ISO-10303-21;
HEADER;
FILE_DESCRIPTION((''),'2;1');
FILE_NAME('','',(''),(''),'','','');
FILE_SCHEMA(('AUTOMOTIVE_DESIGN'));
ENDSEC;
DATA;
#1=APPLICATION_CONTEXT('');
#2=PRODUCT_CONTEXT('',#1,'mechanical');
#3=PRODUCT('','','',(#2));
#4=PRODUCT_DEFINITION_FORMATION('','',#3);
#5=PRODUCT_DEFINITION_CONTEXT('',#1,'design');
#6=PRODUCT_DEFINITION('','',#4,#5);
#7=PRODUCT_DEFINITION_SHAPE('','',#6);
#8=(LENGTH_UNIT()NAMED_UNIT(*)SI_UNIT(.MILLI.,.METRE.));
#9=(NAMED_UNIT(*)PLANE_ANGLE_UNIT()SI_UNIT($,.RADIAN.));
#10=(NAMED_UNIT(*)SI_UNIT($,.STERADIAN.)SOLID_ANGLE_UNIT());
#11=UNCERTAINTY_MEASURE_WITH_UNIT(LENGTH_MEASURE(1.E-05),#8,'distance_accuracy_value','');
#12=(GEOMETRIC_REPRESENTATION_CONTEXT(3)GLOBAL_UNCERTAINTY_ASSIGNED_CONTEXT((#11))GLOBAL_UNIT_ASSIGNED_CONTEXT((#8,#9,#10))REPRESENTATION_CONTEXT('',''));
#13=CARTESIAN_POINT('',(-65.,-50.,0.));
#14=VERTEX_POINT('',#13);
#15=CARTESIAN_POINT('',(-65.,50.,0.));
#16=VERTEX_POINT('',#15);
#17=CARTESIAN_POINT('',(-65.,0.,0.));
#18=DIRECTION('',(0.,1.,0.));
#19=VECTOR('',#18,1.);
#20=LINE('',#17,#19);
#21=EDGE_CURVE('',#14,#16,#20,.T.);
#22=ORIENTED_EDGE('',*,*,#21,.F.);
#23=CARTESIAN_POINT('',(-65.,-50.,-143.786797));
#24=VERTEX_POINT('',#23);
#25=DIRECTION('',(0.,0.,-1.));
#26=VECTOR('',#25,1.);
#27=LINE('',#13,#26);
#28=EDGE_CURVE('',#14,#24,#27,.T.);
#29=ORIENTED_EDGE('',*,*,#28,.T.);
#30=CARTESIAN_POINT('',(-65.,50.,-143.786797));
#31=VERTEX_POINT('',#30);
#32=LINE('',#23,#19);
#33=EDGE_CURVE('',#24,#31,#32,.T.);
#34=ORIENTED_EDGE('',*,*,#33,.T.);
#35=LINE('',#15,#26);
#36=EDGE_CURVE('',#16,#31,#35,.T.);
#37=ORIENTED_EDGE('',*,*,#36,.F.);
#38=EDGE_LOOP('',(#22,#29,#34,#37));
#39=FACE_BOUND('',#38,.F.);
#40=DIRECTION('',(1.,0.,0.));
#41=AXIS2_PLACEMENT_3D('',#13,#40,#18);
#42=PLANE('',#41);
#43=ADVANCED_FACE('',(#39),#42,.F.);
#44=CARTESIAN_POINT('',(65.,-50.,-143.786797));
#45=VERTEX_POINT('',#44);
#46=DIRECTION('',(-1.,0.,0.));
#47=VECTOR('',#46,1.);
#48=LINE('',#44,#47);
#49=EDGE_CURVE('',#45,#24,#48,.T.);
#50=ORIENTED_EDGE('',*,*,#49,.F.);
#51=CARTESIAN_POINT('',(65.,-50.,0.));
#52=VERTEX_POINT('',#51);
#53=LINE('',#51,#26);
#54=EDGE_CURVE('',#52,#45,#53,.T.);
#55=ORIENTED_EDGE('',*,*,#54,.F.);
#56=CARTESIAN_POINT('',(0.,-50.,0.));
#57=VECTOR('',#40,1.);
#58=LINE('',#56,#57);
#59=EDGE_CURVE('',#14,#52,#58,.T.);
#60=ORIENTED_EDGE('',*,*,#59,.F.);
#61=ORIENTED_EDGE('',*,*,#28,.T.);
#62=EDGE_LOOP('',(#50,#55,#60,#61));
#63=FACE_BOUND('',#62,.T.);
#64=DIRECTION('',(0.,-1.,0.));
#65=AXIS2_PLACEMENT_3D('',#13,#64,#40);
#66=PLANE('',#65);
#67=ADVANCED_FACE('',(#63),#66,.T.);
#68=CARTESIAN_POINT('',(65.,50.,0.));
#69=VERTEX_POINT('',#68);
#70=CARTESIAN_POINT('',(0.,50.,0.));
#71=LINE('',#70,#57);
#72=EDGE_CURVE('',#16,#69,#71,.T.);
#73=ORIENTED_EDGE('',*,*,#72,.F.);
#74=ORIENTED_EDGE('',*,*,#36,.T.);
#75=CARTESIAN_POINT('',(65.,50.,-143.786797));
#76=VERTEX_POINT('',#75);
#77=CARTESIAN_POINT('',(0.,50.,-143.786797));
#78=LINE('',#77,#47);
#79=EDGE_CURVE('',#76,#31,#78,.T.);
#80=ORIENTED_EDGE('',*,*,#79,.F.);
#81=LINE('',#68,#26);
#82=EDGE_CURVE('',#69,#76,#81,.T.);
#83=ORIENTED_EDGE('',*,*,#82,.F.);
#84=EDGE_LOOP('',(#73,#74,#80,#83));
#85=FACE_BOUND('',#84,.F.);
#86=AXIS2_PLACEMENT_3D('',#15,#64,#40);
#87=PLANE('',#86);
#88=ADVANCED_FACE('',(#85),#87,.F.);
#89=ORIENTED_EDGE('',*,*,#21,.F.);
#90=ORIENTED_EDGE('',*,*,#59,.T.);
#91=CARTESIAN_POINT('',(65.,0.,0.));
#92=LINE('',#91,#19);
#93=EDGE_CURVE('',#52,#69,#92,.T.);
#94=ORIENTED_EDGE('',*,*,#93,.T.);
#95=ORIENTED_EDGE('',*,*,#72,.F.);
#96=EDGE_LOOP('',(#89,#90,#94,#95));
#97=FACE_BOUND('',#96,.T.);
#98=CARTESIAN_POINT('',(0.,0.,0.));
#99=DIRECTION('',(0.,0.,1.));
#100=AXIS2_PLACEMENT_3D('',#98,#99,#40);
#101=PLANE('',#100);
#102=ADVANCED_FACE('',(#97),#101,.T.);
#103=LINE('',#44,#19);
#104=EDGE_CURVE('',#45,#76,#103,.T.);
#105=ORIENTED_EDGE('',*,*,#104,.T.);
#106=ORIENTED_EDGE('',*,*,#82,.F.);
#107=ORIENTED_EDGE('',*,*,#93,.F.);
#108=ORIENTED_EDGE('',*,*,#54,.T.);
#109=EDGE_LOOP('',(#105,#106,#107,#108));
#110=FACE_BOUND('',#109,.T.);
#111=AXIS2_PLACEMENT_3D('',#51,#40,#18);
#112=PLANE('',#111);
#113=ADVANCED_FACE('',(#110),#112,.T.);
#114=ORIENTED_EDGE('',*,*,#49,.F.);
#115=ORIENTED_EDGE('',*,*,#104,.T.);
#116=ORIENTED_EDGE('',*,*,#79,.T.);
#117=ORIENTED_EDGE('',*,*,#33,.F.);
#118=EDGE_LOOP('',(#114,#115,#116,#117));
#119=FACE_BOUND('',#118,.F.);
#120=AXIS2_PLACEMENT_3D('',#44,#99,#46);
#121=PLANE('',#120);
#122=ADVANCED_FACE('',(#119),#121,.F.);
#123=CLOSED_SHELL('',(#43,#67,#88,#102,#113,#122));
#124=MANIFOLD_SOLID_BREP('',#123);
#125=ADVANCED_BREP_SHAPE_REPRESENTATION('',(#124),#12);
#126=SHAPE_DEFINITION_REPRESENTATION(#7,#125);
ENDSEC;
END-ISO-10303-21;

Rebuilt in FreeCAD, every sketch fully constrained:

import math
import FreeCAD as App
import Part
import Sketcher
from FreeCAD import Vector
Q = App.Units.Quantity


def edges_at(feature, points):
    """Names of the edges that pass closest to the given points."""
    edges = feature.Shape.Edges
    near = lambda p: min(range(len(edges)), key=lambda i: edges[i].distToShape(Part.Vertex(*p))[0])
    return sorted({f"Edge{near(p) + 1}" for p in points})

doc = App.newDocument("Part")
body = doc.addObject("PartDesign::Body", "Body")

sketch1 = body.newObject("Sketcher::SketchObject", "Sketch")
sketch1.AttachmentSupport = (doc.getObject("XY_Plane"), [""])
sketch1.MapMode = "FlatFace"
sketch1.addGeometry([
    Part.LineSegment(Vector(-65, 50, 0), Vector(-65, -50, 0)),
    Part.LineSegment(Vector(-65, -50, 0), Vector(65, -50, 0)),
    Part.LineSegment(Vector(65, -50, 0), Vector(65, 50, 0)),
    Part.LineSegment(Vector(65, 50, 0), Vector(-65, 50, 0)),
], False)
sketch1.addConstraint([
    Sketcher.Constraint("Coincident", 0, 2, 1, 1),
    Sketcher.Constraint("Coincident", 1, 2, 2, 1),
    Sketcher.Constraint("Coincident", 2, 2, 3, 1),
    Sketcher.Constraint("Coincident", 3, 2, 0, 1),
    Sketcher.Constraint("Vertical", 0),
    Sketcher.Constraint("Horizontal", 1),
    Sketcher.Constraint("Vertical", 2),
    Sketcher.Constraint("Horizontal", 3),
    Sketcher.Constraint("Symmetric", 0, 2, 2, 2, -1, 1),
    Sketcher.Constraint("DistanceX", 1, 1, 1, 2, Q("130 mm")),
    Sketcher.Constraint("DistanceY", 0, 2, 0, 1, Q("100 mm")),
])
pad1 = body.newObject("PartDesign::Pad", "Pad")
pad1.Profile = sketch1
pad1.Length = 180
pad1.Reversed = True
doc.recompute()

fillet = body.newObject("PartDesign::Fillet", "Fillet")
fillet.Base = (pad1, edges_at(pad1, [(65, 0, -180), (-65, 0, -180)]))
fillet.Radius = 36.213203

sketch2 = body.newObject("Sketcher::SketchObject", "Sketch001")
sketch2.AttachmentSupport = (doc.getObject("XZ_Plane"), [""])
sketch2.MapMode = "FlatFace"
sketch2.AttachmentOffset = App.Placement(Vector(0, 0, 50), App.Rotation())
sketch2.addGeometry([
    Part.ArcOfCircle(Part.Circle(Vector(28.786796, -143.786796, 0), Vector(0, 0, 1), 36.213204), math.radians(-89.999998), math.radians(-0.000002)),
    Part.LineSegment(Vector(65, -143.786797, 0), Vector(-65, -143.786797, 0)),
    Part.ArcOfCircle(Part.Circle(Vector(-28.786796, -143.786796, 0), Vector(0, 0, 1), 36.213204), math.radians(-179.999998), math.radians(-90.000002)),
    Part.LineSegment(Vector(-28.786797, -180, 0), Vector(28.786797, -180, 0)),
], False)
sketch2.addConstraint([
    Sketcher.Constraint("Coincident", 0, 2, 1, 1),
    Sketcher.Constraint("Coincident", 1, 2, 2, 1),
    Sketcher.Constraint("Tangent", 2, 2, 3, 1),
    Sketcher.Constraint("Tangent", 3, 2, 0, 1),
    Sketcher.Constraint("Horizontal", 1),
    Sketcher.Constraint("Horizontal", 3),
    Sketcher.Constraint("Equal", 0, 2),
    Sketcher.Constraint("Horizontal", 2, 3, 0, 2),
    Sketcher.Constraint("DistanceX", 1, 2, 1, 1, Q("130 mm")),
    Sketcher.Constraint("DistanceX", -1, 1, 0, 2, Q("65 mm")),
    Sketcher.Constraint("DistanceY", 2, 2, -1, 1, Q("180 mm")),
    Sketcher.Constraint("Radius", 0, Q("36.213204 mm")),
])
pocket1 = body.newObject("PartDesign::Pocket", "Pocket")
pocket1.Profile = sketch2
pocket1.Length = 115

doc.recompute()
